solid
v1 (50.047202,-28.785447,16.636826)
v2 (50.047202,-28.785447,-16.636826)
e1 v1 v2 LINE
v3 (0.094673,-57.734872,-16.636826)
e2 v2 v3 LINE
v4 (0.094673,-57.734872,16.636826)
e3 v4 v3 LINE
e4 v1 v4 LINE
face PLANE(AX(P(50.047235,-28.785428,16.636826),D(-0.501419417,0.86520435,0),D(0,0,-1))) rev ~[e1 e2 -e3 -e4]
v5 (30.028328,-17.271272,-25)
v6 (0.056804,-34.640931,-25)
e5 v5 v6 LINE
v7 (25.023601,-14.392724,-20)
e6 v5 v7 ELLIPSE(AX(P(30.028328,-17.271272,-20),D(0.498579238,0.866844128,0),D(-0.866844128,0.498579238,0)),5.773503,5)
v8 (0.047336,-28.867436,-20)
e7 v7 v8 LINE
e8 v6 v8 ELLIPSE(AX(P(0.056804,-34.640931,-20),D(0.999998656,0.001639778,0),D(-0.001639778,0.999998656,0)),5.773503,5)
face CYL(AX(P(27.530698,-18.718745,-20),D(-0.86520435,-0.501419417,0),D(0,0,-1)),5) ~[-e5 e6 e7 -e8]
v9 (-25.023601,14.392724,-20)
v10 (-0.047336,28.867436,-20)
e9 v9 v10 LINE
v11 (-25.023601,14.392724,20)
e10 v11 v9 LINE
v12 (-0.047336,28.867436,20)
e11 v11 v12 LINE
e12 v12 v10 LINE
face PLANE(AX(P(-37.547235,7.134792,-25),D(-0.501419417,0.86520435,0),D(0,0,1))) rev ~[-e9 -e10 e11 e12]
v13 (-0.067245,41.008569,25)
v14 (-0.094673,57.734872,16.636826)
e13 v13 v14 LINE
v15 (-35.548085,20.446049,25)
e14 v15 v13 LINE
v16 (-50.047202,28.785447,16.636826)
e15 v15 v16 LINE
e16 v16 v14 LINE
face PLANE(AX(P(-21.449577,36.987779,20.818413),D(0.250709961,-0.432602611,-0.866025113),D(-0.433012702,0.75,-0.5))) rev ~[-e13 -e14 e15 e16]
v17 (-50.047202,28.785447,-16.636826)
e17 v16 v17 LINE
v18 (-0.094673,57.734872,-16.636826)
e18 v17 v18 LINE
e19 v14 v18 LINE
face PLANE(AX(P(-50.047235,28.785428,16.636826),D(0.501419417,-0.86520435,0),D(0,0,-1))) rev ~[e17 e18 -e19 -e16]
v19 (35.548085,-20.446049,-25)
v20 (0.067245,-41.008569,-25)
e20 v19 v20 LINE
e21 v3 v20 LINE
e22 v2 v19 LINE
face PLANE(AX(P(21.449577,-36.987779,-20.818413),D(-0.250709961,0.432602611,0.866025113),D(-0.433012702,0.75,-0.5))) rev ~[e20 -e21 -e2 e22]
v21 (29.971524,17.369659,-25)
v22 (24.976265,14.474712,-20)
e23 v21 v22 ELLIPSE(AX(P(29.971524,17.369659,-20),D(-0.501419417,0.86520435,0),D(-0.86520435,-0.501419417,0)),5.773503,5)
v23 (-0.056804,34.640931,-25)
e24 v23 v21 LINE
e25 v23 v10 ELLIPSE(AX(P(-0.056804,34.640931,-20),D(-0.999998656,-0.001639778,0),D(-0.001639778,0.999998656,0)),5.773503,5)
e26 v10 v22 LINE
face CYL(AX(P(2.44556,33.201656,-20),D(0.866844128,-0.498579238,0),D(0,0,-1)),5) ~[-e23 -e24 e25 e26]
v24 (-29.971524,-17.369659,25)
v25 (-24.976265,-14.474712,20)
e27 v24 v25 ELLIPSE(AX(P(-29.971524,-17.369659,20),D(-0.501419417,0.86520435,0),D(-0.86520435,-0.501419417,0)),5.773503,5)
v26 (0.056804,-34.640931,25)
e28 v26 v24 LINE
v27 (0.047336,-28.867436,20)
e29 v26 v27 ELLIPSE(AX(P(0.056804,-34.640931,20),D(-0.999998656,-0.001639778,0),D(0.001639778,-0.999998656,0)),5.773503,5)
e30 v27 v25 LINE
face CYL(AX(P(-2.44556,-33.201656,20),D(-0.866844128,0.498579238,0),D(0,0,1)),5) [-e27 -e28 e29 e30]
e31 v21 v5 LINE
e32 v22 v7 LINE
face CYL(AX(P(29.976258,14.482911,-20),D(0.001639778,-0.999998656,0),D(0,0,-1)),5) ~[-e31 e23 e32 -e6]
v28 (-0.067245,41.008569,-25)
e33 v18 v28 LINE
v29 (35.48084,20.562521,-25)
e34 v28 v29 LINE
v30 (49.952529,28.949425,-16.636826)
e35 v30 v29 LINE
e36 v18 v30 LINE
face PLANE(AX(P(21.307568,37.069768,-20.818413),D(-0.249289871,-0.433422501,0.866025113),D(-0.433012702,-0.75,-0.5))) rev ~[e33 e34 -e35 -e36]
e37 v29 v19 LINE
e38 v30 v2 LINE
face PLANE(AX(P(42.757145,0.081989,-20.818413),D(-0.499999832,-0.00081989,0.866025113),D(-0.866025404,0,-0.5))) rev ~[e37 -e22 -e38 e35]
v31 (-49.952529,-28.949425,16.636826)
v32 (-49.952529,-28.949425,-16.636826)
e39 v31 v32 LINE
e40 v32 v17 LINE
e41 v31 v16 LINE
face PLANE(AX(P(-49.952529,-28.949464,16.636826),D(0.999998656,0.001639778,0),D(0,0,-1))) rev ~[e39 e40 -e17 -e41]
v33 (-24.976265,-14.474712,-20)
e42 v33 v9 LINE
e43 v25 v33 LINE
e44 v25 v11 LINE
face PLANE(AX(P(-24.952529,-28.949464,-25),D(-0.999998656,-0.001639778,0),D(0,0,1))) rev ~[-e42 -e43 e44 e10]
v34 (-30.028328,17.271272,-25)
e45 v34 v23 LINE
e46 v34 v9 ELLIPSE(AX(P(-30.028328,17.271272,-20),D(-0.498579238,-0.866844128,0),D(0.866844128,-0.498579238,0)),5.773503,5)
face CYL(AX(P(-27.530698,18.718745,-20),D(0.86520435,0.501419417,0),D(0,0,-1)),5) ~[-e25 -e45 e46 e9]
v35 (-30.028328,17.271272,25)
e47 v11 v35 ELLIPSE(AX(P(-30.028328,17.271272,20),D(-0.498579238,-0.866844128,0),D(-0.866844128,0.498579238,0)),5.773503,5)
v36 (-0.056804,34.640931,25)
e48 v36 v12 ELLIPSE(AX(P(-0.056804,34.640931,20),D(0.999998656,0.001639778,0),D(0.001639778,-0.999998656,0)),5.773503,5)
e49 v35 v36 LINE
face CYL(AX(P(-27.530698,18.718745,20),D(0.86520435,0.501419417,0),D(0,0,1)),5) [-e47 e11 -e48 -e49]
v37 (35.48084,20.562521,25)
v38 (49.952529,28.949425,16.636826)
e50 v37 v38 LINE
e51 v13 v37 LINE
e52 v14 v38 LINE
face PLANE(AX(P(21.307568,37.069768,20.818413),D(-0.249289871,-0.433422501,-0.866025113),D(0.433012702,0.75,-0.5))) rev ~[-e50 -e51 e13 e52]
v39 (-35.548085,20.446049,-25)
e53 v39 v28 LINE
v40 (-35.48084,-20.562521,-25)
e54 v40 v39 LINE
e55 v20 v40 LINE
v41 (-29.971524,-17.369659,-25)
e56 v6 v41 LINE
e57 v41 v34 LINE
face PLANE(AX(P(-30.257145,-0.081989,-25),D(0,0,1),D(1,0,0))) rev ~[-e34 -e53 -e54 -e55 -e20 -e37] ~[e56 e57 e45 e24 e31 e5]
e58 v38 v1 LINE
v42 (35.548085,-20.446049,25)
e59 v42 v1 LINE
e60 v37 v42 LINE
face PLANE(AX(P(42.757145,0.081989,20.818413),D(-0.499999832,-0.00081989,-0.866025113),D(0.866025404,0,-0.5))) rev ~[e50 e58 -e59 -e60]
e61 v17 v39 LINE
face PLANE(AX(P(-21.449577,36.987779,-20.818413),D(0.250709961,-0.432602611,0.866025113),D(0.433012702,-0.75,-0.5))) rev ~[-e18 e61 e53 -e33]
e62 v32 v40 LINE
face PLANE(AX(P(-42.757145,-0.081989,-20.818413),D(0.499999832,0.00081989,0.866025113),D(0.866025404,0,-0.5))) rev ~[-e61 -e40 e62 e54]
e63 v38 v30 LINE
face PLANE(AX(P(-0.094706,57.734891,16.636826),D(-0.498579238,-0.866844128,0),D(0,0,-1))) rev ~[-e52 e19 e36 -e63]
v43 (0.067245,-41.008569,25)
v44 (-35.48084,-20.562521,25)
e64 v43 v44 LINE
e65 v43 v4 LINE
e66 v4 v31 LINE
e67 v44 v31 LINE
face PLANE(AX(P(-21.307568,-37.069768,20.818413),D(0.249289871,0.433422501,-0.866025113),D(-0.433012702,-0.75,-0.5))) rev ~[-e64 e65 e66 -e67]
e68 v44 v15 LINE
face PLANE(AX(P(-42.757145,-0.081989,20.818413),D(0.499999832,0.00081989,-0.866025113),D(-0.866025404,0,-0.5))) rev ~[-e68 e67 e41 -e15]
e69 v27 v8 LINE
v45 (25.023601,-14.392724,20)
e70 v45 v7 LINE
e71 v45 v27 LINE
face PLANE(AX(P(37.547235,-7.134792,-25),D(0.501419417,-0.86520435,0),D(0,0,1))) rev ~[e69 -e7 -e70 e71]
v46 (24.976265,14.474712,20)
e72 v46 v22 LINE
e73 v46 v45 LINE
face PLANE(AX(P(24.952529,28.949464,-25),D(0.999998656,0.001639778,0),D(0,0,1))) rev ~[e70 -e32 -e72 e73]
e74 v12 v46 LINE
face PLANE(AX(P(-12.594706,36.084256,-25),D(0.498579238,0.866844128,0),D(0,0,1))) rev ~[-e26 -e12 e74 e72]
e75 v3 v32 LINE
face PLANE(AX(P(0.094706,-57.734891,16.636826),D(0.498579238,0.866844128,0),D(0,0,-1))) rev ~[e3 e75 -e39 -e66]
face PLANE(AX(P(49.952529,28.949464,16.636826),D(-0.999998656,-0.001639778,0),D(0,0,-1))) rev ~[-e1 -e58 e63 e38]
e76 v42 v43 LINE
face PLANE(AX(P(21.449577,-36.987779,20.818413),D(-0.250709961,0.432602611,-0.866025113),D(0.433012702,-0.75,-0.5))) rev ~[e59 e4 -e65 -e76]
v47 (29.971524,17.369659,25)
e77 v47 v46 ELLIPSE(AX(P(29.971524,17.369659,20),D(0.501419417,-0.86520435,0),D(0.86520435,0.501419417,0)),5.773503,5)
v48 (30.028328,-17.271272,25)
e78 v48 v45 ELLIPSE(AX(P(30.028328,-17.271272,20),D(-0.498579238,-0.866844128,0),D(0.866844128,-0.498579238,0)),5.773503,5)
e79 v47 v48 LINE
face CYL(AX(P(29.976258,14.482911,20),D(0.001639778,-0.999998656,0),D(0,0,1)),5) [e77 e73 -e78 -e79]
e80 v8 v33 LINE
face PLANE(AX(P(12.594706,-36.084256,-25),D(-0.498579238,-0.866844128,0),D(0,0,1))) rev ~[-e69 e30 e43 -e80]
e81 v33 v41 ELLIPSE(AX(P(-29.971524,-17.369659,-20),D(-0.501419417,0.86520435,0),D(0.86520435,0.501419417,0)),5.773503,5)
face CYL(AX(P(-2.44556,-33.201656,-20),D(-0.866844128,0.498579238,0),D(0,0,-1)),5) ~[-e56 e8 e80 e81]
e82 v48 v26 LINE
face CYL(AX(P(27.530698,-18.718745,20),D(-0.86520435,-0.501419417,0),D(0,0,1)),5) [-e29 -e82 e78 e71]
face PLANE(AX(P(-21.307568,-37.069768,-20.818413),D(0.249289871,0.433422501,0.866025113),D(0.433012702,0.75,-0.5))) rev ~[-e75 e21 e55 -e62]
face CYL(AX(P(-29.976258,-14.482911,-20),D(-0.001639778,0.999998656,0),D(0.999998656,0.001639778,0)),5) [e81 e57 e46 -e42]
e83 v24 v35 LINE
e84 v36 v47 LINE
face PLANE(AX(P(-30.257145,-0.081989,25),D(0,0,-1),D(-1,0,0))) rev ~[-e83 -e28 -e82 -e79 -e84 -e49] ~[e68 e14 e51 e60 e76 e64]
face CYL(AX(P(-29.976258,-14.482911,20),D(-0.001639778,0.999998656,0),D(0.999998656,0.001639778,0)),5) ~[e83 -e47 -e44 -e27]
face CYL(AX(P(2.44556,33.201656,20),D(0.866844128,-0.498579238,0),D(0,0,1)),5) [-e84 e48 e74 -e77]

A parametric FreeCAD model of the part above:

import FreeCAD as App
import Part
import Sketcher

V = App.Vector
Q = App.Units.Quantity


def edges_at(feature, points):
    """Names of the edges that pass closest to the given points."""
    edges = feature.Shape.Edges
    near = lambda p: min(range(len(edges)), key=lambda i: edges[i].distToShape(Part.Vertex(*p))[0])
    return sorted({f"Edge{near(p) + 1}" for p in points})

doc = App.newDocument("Part")
body = doc.addObject("PartDesign::Body", "Body")

# Sketch on XZ plane
sketch1 = body.newObject("Sketcher::SketchObject", "Sketch")
sketch1.AttachmentSupport = (doc.getObject("XZ_Plane"), [""])
sketch1.MapMode = "FlatFace"
sketch1.addGeometry(Part.LineSegment(V(-25, -25, 0), V(-25, 25, 0)), False)
sketch1.addGeometry(Part.LineSegment(V(-25, 25, 0), V(-36, 25, 0)), False)
sketch1.addGeometry(Part.LineSegment(V(-36, 25, 0), V(-50, 17, 0)), False)
sketch1.addGeometry(Part.LineSegment(V(-50, 17, 0), V(-50, -17, 0)), False)
sketch1.addGeometry(Part.LineSegment(V(-50, -17, 0), V(-36, -25, 0)), False)
sketch1.addGeometry(Part.LineSegment(V(-36, -25, 0), V(-25, -25, 0)), False)
sketch1.addConstraint(Sketcher.Constraint("Coincident", 0, 2, 1, 1))
sketch1.addConstraint(Sketcher.Constraint("Coincident", 1, 2, 2, 1))
sketch1.addConstraint(Sketcher.Constraint("Coincident", 2, 2, 3, 1))
sketch1.addConstraint(Sketcher.Constraint("Coincident", 3, 2, 4, 1))
sketch1.addConstraint(Sketcher.Constraint("Coincident", 4, 2, 5, 1))
sketch1.addConstraint(Sketcher.Constraint("Coincident", 5, 2, 0, 1))
sketch1.addConstraint(Sketcher.Constraint("Vertical", 0))
sketch1.addConstraint(Sketcher.Constraint("Horizontal", 1))
sketch1.addConstraint(Sketcher.Constraint("Vertical", 3))
sketch1.addConstraint(Sketcher.Constraint("Horizontal", 5))
sketch1.addConstraint(Sketcher.Constraint("Symmetric", 1, 2, 4, 2, -1))
sketch1.addConstraint(Sketcher.Constraint("Equal", 2, 4))
sketch1.addConstraint(Sketcher.Constraint("DistanceY", 0, 1, 0, 2, 50.0))
sketch1.addConstraint(Sketcher.Constraint("Angle", 2, Q("-150 deg")))
sketch1.addConstraint(Sketcher.Constraint("DistanceX", 0, 2, -1, 1, 25.0))
sketch1.addConstraint(Sketcher.Constraint("DistanceX", 2, 2, -1, 1, 50.0))
sketch1.addConstraint(Sketcher.Constraint("DistanceX", 1, 2, 1, 1, 10.514558))

# Sketch on XY plane
sketch2 = body.newObject("Sketcher::SketchObject", "Sketch001")
sketch2.AttachmentSupport = (doc.getObject("XY_Plane"), [""])
sketch2.MapMode = "FlatFace"
sketch2.addGeometry(Part.LineSegment(V(-50, -29, 0), V(-50, 29, 0)), False)
sketch2.addGeometry(Part.LineSegment(V(-50, 29, 0), V(0, 58, 0)), False)
sketch2.addGeometry(Part.LineSegment(V(0, 58, 0), V(50, 29, 0)), False)
sketch2.addGeometry(Part.LineSegment(V(50, 29, 0), V(50, -29, 0)), False)
sketch2.addGeometry(Part.LineSegment(V(50, -29, 0), V(0, -58, 0)), False)
sketch2.addGeometry(Part.LineSegment(V(0, -58, 0), V(-50, -29, 0)), False)
sketch2.addConstraint(Sketcher.Constraint("Coincident", 0, 2, 1, 1))
sketch2.addConstraint(Sketcher.Constraint("Coincident", 1, 2, 2, 1))
sketch2.addConstraint(Sketcher.Constraint("Coincident", 2, 2, 3, 1))
sketch2.addConstraint(Sketcher.Constraint("Coincident", 3, 2, 4, 1))
sketch2.addConstraint(Sketcher.Constraint("Coincident", 4, 2, 5, 1))
sketch2.addConstraint(Sketcher.Constraint("Coincident", 5, 2, 0, 1))
sketch2.addConstraint(Sketcher.Constraint("Symmetric", 0, 2, 3, 2, -1, 1))
sketch2.addConstraint(Sketcher.Constraint("Symmetric", 1, 2, 4, 2, -1, 1))
sketch2.addConstraint(Sketcher.Constraint("Symmetric", 2, 2, 5, 2, -1, 1))
sketch2.addConstraint(Sketcher.Constraint("Equal", 0, 1))
sketch2.addConstraint(Sketcher.Constraint("Equal", 1, 2))
sketch2.addConstraint(Sketcher.Constraint("DistanceY", 4, 2, 1, 2, 115.469899))
sketch2.addConstraint(Sketcher.Constraint("DistanceX", 0, 2, -1, 1, 50.047269))
sketch2.addConstraint(Sketcher.Constraint("DistanceX", 1, 2, 2, 2, 50.047269))
sketch2.addConstraint(Sketcher.Constraint("DistanceY", 3, 2, 2, 2, 57.734949))
doc.recompute()

additivepipe = body.newObject("PartDesign::AdditivePipe", "AdditivePipe")
additivepipe.Profile = sketch1
additivepipe.Spine = (sketch2, ["Edge1", "Edge2", "Edge3", "Edge4", "Edge5", "Edge6"])
additivepipe.Transition = "Right corner"
doc.recompute()

fillet = body.newObject("PartDesign::Fillet", "Fillet")
fillet.Base = (additivepipe, edges_at(additivepipe, [
    (12.464, 21.671, 25),
    (25, 0.041, 25),
    (12.535, -21.63, 25),
    (-12.464, -21.671, 25),
    (-25, -0.041, 25),
    (-12.535, 21.63, 25),
    (-12.535, 21.63, -25),
    (-25, -0.041, -25),
    (-12.464, -21.671, -25),
    (12.535, -21.63, -25),
    (25, 0.041, -25),
    (12.464, 21.671, -25),
]))
fillet.Radius = 5

doc.recompute()
